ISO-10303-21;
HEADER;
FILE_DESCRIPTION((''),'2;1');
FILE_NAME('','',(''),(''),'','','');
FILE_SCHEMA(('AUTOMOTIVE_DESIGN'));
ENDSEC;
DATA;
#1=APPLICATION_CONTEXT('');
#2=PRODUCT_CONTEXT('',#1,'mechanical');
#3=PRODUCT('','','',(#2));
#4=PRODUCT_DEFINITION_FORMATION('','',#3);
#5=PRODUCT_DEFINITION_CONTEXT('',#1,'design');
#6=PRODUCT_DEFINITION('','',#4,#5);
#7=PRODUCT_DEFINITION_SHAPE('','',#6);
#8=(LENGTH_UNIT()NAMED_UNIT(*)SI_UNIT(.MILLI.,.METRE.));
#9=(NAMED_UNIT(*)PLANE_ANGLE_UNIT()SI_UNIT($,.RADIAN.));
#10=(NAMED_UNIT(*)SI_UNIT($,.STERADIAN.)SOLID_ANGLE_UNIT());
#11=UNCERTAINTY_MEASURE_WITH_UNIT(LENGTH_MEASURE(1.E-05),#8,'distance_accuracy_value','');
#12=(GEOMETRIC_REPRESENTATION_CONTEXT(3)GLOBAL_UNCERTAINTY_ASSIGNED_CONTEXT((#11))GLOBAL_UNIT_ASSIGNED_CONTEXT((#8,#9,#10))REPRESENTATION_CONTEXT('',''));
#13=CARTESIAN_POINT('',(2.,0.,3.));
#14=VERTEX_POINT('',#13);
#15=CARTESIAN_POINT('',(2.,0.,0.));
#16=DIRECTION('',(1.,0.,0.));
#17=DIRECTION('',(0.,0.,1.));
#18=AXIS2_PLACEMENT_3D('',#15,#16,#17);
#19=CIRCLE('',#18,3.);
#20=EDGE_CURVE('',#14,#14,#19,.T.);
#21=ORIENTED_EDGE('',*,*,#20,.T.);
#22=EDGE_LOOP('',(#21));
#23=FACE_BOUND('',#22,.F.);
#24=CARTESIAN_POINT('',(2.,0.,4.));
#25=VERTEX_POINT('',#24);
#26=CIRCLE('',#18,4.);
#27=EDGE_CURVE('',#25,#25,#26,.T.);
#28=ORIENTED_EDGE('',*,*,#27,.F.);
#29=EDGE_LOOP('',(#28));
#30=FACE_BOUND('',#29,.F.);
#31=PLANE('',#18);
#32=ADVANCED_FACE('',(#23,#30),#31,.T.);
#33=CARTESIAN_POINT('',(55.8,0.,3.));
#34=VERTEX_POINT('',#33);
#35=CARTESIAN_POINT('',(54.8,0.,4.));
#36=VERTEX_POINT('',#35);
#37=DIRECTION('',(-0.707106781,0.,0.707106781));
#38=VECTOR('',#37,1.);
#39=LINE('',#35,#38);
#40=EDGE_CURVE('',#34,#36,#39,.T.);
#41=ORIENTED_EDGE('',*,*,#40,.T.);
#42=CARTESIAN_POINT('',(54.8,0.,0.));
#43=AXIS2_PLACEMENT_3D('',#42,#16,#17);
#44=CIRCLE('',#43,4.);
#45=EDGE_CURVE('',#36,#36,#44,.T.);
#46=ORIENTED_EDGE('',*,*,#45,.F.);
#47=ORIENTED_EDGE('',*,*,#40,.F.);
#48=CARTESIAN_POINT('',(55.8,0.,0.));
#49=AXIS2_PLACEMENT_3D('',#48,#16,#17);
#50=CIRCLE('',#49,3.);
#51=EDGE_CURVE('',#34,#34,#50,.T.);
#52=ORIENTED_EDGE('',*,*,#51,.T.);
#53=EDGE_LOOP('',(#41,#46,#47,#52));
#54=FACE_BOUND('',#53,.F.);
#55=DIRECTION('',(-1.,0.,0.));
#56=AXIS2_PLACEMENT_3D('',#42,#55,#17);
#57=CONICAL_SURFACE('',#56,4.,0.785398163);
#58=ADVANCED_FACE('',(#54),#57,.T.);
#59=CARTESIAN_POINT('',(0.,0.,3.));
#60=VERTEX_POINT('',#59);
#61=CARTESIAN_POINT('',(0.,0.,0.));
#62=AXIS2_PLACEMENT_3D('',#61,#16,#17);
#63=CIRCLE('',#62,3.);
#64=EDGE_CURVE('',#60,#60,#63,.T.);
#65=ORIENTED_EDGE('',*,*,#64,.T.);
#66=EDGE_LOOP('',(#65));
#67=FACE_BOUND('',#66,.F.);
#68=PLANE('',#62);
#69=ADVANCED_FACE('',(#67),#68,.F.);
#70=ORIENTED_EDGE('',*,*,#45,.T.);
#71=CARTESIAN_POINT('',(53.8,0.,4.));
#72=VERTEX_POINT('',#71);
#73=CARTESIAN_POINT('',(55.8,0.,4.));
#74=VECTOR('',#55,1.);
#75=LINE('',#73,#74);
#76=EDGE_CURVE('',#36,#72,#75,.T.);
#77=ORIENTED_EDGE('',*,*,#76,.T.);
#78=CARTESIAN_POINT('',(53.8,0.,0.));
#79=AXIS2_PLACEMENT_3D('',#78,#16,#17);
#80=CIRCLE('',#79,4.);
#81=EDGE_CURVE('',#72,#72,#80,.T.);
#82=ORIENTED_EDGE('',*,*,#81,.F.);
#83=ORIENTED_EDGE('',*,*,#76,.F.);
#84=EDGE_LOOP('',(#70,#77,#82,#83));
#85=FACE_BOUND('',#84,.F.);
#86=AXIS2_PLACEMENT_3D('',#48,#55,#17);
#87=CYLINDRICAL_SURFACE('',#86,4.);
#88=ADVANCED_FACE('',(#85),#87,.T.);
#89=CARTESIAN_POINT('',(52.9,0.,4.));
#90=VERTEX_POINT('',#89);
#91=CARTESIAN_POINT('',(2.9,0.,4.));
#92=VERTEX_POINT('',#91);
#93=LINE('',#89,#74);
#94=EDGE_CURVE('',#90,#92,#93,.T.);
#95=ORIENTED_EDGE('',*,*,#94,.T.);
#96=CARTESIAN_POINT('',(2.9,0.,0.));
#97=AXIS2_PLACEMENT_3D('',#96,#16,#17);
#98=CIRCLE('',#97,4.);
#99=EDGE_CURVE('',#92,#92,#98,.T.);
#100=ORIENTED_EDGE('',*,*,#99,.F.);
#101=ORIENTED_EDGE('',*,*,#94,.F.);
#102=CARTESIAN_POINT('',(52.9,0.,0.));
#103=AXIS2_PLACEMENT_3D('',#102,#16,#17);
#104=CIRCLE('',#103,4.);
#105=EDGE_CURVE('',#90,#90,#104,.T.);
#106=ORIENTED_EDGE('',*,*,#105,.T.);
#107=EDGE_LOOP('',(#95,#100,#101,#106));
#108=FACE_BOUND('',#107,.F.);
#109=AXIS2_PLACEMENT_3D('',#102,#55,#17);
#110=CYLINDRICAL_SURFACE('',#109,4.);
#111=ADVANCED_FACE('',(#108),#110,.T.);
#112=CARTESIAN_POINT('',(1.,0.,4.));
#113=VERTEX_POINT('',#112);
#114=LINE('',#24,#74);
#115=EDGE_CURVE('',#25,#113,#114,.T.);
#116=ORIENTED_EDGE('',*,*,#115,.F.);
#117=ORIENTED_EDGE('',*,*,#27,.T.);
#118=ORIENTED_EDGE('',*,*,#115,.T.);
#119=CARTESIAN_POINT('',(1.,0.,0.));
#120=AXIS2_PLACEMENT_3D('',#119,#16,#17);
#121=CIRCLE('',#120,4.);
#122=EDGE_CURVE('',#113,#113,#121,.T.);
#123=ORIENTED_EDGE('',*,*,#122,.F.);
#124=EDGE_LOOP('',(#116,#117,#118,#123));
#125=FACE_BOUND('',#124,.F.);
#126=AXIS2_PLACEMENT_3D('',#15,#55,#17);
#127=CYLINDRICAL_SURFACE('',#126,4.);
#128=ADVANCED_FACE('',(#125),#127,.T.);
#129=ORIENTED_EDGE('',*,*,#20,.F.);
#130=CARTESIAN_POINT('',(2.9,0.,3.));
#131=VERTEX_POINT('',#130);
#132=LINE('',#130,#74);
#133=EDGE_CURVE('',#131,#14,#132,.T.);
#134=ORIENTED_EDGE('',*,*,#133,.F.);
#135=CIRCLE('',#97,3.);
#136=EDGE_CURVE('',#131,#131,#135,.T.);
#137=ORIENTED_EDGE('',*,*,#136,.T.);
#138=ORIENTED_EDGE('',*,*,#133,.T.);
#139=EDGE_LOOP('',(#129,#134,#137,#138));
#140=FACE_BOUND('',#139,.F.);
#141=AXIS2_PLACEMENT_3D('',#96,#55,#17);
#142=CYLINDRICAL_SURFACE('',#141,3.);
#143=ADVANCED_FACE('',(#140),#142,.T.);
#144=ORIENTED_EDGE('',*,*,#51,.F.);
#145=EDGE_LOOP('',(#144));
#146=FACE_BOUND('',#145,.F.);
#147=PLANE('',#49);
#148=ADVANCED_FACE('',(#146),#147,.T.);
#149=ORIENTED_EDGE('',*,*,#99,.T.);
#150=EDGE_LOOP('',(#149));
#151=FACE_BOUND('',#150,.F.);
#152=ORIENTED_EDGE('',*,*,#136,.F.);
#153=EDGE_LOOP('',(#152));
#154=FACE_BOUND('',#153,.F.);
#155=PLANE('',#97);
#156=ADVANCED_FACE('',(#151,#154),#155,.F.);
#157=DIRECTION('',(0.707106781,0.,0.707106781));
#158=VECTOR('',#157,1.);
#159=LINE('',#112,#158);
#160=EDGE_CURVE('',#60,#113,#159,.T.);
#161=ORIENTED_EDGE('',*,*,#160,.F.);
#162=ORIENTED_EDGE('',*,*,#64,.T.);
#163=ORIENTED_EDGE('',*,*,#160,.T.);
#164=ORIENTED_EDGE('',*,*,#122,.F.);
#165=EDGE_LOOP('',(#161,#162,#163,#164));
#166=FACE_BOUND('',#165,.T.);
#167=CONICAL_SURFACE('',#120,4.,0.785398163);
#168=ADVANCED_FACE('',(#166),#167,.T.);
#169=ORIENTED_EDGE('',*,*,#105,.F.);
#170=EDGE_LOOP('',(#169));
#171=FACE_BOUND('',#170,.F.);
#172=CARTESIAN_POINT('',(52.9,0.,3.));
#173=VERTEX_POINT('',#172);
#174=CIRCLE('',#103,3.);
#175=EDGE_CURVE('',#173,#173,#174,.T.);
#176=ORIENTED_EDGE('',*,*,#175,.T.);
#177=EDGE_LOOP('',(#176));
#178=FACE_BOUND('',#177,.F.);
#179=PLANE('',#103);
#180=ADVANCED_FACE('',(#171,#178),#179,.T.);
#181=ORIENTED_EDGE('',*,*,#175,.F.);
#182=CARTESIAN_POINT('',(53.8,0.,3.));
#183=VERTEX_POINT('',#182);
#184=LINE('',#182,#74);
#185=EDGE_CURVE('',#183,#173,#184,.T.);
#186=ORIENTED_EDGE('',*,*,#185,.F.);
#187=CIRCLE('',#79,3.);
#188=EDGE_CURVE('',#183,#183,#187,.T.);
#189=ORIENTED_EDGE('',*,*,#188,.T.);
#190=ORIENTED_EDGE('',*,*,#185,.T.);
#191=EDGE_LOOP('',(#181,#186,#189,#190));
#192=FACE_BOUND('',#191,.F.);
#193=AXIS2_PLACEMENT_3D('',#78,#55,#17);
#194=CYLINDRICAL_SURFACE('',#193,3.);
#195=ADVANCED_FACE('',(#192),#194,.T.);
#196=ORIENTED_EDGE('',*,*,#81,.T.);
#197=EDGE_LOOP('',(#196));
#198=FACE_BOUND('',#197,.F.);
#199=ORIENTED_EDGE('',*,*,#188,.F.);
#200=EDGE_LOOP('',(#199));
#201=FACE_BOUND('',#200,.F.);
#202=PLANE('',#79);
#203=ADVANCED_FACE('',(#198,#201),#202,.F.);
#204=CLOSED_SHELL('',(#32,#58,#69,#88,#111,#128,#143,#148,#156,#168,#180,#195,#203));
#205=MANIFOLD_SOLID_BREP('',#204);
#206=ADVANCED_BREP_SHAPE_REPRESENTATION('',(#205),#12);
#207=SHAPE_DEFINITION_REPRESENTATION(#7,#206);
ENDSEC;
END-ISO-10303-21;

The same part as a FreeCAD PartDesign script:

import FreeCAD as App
import Part
import Sketcher

V = App.Vector


def edges_at(feature, points):
    """Names of the edges that pass closest to the given points."""
    edges = feature.Shape.Edges
    near = lambda p: min(range(len(edges)), key=lambda i: edges[i].distToShape(Part.Vertex(*p))[0])
    return sorted({f"Edge{near(p) + 1}" for p in points})

doc = App.newDocument("Part")
params = doc.addObject("Spreadsheet::Sheet", "Params")
for row, (alias, value) in enumerate([
    ("sketch1_width", "2 mm"),
    ("sketch1_width2", "50 mm"),
    ("sketch1_height", "4 mm"),
    ("sketch1_height2", "1 mm"),
    ("sketch1_width3", "55.8 mm"),
    ("revolution_angle", "360 deg"),
    ("chamfer_size", "1 mm"),
], start=1):
    params.set(f"A{row}", alias)
    params.set(f"B{row}", "=" + value)
    params.setAlias(f"B{row}", alias)

body = doc.addObject("PartDesign::Body", "Body")

sketch1 = body.newObject("Sketcher::SketchObject", "Sketch")
sketch1.AttachmentSupport = (doc.getObject("XZ_Plane"), [""])
sketch1.MapMode = "FlatFace"
sketch1.addGeometry([
    Part.LineSegment(V(0, 4, 0), V(0, 0, 0)),
    Part.LineSegment(V(0, 0, 0), V(55.8, 0, 0)),
    Part.LineSegment(V(55.8, 0, 0), V(55.8, 4, 0)),
    Part.LineSegment(V(55.8, 4, 0), V(53.8, 4, 0)),
    Part.LineSegment(V(53.8, 4, 0), V(53.8, 3, 0)),
    Part.LineSegment(V(53.8, 3, 0), V(52.9, 3, 0)),
    Part.LineSegment(V(52.9, 3, 0), V(52.9, 4, 0)),
    Part.LineSegment(V(52.9, 4, 0), V(2.9, 4, 0)),
    Part.LineSegment(V(2.9, 4, 0), V(2.9, 3, 0)),
    Part.LineSegment(V(2.9, 3, 0), V(2, 3, 0)),
    Part.LineSegment(V(2, 3, 0), V(2, 4, 0)),
    Part.LineSegment(V(2, 4, 0), V(0, 4, 0)),
], False)
sketch1.addConstraint([
    Sketcher.Constraint("Coincident", 0, 2, 1, 1),
    Sketcher.Constraint("Coincident", 1, 2, 2, 1),
    Sketcher.Constraint("Coincident", 2, 2, 3, 1),
    Sketcher.Constraint("Coincident", 3, 2, 4, 1),
    Sketcher.Constraint("Coincident", 4, 2, 5, 1),
    Sketcher.Constraint("Coincident", 5, 2, 6, 1),
    Sketcher.Constraint("Coincident", 6, 2, 7, 1),
    Sketcher.Constraint("Coincident", 7, 2, 8, 1),
    Sketcher.Constraint("Coincident", 8, 2, 9, 1),
    Sketcher.Constraint("Coincident", 9, 2, 10, 1),
    Sketcher.Constraint("Coincident", 10, 2, 11, 1),
    Sketcher.Constraint("Coincident", 11, 2, 0, 1),
    Sketcher.Constraint("Vertical", 0),
    Sketcher.Constraint("Horizontal", 1),
    Sketcher.Constraint("Vertical", 2),
    Sketcher.Constraint("Horizontal", 3),
    Sketcher.Constraint("Vertical", 4),
    Sketcher.Constraint("Horizontal", 5),
    Sketcher.Constraint("Vertical", 6),
    Sketcher.Constraint("Horizontal", 7),
    Sketcher.Constraint("Vertical", 8),
    Sketcher.Constraint("Horizontal", 9),
    Sketcher.Constraint("Vertical", 10),
    Sketcher.Constraint("Horizontal", 11),
    Sketcher.Constraint("Coincident", 0, 2, -1, 1),
    Sketcher.Constraint("Horizontal", 3, 2, 6, 2),
    Sketcher.Constraint("Horizontal", 5, 2, 8, 2),
    Sketcher.Constraint("Horizontal", 7, 2, 10, 2),
    Sketcher.Constraint("Equal", 5, 9),
    Sketcher.Constraint("Equal", 3, 11),
    Sketcher.Constraint("DistanceX", 3, 2, 3, 1, 2.0),
    Sketcher.Constraint("DistanceX", 7, 2, 7, 1, 50.0),
    Sketcher.Constraint("DistanceY", 0, 2, 0, 1, 4.0),
    Sketcher.Constraint("DistanceY", 4, 2, 4, 1, 1.0),
    Sketcher.Constraint("DistanceX", 1, 1, 1, 2, 55.8),
])
sketch1.setExpression("Constraints[30]", "Params.sketch1_width")
sketch1.setExpression("Constraints[31]", "Params.sketch1_width2")
sketch1.setExpression("Constraints[32]", "Params.sketch1_height")
sketch1.setExpression("Constraints[33]", "Params.sketch1_height2")
sketch1.setExpression("Constraints[34]", "Params.sketch1_width3")
revolution = body.newObject("PartDesign::Revolution", "Revolution")
revolution.Profile = sketch1
revolution.ReferenceAxis = (sketch1, ["H_Axis"])
revolution.setExpression("Angle", "Params.revolution_angle")
doc.recompute()

chamfer = body.newObject("PartDesign::Chamfer", "Chamfer")
chamfer.Base = (revolution, edges_at(revolution, [(55.8, 0, -4), (0, 0, -4)]))
chamfer.setExpression("Size", "Params.chamfer_size")

doc.recompute()
